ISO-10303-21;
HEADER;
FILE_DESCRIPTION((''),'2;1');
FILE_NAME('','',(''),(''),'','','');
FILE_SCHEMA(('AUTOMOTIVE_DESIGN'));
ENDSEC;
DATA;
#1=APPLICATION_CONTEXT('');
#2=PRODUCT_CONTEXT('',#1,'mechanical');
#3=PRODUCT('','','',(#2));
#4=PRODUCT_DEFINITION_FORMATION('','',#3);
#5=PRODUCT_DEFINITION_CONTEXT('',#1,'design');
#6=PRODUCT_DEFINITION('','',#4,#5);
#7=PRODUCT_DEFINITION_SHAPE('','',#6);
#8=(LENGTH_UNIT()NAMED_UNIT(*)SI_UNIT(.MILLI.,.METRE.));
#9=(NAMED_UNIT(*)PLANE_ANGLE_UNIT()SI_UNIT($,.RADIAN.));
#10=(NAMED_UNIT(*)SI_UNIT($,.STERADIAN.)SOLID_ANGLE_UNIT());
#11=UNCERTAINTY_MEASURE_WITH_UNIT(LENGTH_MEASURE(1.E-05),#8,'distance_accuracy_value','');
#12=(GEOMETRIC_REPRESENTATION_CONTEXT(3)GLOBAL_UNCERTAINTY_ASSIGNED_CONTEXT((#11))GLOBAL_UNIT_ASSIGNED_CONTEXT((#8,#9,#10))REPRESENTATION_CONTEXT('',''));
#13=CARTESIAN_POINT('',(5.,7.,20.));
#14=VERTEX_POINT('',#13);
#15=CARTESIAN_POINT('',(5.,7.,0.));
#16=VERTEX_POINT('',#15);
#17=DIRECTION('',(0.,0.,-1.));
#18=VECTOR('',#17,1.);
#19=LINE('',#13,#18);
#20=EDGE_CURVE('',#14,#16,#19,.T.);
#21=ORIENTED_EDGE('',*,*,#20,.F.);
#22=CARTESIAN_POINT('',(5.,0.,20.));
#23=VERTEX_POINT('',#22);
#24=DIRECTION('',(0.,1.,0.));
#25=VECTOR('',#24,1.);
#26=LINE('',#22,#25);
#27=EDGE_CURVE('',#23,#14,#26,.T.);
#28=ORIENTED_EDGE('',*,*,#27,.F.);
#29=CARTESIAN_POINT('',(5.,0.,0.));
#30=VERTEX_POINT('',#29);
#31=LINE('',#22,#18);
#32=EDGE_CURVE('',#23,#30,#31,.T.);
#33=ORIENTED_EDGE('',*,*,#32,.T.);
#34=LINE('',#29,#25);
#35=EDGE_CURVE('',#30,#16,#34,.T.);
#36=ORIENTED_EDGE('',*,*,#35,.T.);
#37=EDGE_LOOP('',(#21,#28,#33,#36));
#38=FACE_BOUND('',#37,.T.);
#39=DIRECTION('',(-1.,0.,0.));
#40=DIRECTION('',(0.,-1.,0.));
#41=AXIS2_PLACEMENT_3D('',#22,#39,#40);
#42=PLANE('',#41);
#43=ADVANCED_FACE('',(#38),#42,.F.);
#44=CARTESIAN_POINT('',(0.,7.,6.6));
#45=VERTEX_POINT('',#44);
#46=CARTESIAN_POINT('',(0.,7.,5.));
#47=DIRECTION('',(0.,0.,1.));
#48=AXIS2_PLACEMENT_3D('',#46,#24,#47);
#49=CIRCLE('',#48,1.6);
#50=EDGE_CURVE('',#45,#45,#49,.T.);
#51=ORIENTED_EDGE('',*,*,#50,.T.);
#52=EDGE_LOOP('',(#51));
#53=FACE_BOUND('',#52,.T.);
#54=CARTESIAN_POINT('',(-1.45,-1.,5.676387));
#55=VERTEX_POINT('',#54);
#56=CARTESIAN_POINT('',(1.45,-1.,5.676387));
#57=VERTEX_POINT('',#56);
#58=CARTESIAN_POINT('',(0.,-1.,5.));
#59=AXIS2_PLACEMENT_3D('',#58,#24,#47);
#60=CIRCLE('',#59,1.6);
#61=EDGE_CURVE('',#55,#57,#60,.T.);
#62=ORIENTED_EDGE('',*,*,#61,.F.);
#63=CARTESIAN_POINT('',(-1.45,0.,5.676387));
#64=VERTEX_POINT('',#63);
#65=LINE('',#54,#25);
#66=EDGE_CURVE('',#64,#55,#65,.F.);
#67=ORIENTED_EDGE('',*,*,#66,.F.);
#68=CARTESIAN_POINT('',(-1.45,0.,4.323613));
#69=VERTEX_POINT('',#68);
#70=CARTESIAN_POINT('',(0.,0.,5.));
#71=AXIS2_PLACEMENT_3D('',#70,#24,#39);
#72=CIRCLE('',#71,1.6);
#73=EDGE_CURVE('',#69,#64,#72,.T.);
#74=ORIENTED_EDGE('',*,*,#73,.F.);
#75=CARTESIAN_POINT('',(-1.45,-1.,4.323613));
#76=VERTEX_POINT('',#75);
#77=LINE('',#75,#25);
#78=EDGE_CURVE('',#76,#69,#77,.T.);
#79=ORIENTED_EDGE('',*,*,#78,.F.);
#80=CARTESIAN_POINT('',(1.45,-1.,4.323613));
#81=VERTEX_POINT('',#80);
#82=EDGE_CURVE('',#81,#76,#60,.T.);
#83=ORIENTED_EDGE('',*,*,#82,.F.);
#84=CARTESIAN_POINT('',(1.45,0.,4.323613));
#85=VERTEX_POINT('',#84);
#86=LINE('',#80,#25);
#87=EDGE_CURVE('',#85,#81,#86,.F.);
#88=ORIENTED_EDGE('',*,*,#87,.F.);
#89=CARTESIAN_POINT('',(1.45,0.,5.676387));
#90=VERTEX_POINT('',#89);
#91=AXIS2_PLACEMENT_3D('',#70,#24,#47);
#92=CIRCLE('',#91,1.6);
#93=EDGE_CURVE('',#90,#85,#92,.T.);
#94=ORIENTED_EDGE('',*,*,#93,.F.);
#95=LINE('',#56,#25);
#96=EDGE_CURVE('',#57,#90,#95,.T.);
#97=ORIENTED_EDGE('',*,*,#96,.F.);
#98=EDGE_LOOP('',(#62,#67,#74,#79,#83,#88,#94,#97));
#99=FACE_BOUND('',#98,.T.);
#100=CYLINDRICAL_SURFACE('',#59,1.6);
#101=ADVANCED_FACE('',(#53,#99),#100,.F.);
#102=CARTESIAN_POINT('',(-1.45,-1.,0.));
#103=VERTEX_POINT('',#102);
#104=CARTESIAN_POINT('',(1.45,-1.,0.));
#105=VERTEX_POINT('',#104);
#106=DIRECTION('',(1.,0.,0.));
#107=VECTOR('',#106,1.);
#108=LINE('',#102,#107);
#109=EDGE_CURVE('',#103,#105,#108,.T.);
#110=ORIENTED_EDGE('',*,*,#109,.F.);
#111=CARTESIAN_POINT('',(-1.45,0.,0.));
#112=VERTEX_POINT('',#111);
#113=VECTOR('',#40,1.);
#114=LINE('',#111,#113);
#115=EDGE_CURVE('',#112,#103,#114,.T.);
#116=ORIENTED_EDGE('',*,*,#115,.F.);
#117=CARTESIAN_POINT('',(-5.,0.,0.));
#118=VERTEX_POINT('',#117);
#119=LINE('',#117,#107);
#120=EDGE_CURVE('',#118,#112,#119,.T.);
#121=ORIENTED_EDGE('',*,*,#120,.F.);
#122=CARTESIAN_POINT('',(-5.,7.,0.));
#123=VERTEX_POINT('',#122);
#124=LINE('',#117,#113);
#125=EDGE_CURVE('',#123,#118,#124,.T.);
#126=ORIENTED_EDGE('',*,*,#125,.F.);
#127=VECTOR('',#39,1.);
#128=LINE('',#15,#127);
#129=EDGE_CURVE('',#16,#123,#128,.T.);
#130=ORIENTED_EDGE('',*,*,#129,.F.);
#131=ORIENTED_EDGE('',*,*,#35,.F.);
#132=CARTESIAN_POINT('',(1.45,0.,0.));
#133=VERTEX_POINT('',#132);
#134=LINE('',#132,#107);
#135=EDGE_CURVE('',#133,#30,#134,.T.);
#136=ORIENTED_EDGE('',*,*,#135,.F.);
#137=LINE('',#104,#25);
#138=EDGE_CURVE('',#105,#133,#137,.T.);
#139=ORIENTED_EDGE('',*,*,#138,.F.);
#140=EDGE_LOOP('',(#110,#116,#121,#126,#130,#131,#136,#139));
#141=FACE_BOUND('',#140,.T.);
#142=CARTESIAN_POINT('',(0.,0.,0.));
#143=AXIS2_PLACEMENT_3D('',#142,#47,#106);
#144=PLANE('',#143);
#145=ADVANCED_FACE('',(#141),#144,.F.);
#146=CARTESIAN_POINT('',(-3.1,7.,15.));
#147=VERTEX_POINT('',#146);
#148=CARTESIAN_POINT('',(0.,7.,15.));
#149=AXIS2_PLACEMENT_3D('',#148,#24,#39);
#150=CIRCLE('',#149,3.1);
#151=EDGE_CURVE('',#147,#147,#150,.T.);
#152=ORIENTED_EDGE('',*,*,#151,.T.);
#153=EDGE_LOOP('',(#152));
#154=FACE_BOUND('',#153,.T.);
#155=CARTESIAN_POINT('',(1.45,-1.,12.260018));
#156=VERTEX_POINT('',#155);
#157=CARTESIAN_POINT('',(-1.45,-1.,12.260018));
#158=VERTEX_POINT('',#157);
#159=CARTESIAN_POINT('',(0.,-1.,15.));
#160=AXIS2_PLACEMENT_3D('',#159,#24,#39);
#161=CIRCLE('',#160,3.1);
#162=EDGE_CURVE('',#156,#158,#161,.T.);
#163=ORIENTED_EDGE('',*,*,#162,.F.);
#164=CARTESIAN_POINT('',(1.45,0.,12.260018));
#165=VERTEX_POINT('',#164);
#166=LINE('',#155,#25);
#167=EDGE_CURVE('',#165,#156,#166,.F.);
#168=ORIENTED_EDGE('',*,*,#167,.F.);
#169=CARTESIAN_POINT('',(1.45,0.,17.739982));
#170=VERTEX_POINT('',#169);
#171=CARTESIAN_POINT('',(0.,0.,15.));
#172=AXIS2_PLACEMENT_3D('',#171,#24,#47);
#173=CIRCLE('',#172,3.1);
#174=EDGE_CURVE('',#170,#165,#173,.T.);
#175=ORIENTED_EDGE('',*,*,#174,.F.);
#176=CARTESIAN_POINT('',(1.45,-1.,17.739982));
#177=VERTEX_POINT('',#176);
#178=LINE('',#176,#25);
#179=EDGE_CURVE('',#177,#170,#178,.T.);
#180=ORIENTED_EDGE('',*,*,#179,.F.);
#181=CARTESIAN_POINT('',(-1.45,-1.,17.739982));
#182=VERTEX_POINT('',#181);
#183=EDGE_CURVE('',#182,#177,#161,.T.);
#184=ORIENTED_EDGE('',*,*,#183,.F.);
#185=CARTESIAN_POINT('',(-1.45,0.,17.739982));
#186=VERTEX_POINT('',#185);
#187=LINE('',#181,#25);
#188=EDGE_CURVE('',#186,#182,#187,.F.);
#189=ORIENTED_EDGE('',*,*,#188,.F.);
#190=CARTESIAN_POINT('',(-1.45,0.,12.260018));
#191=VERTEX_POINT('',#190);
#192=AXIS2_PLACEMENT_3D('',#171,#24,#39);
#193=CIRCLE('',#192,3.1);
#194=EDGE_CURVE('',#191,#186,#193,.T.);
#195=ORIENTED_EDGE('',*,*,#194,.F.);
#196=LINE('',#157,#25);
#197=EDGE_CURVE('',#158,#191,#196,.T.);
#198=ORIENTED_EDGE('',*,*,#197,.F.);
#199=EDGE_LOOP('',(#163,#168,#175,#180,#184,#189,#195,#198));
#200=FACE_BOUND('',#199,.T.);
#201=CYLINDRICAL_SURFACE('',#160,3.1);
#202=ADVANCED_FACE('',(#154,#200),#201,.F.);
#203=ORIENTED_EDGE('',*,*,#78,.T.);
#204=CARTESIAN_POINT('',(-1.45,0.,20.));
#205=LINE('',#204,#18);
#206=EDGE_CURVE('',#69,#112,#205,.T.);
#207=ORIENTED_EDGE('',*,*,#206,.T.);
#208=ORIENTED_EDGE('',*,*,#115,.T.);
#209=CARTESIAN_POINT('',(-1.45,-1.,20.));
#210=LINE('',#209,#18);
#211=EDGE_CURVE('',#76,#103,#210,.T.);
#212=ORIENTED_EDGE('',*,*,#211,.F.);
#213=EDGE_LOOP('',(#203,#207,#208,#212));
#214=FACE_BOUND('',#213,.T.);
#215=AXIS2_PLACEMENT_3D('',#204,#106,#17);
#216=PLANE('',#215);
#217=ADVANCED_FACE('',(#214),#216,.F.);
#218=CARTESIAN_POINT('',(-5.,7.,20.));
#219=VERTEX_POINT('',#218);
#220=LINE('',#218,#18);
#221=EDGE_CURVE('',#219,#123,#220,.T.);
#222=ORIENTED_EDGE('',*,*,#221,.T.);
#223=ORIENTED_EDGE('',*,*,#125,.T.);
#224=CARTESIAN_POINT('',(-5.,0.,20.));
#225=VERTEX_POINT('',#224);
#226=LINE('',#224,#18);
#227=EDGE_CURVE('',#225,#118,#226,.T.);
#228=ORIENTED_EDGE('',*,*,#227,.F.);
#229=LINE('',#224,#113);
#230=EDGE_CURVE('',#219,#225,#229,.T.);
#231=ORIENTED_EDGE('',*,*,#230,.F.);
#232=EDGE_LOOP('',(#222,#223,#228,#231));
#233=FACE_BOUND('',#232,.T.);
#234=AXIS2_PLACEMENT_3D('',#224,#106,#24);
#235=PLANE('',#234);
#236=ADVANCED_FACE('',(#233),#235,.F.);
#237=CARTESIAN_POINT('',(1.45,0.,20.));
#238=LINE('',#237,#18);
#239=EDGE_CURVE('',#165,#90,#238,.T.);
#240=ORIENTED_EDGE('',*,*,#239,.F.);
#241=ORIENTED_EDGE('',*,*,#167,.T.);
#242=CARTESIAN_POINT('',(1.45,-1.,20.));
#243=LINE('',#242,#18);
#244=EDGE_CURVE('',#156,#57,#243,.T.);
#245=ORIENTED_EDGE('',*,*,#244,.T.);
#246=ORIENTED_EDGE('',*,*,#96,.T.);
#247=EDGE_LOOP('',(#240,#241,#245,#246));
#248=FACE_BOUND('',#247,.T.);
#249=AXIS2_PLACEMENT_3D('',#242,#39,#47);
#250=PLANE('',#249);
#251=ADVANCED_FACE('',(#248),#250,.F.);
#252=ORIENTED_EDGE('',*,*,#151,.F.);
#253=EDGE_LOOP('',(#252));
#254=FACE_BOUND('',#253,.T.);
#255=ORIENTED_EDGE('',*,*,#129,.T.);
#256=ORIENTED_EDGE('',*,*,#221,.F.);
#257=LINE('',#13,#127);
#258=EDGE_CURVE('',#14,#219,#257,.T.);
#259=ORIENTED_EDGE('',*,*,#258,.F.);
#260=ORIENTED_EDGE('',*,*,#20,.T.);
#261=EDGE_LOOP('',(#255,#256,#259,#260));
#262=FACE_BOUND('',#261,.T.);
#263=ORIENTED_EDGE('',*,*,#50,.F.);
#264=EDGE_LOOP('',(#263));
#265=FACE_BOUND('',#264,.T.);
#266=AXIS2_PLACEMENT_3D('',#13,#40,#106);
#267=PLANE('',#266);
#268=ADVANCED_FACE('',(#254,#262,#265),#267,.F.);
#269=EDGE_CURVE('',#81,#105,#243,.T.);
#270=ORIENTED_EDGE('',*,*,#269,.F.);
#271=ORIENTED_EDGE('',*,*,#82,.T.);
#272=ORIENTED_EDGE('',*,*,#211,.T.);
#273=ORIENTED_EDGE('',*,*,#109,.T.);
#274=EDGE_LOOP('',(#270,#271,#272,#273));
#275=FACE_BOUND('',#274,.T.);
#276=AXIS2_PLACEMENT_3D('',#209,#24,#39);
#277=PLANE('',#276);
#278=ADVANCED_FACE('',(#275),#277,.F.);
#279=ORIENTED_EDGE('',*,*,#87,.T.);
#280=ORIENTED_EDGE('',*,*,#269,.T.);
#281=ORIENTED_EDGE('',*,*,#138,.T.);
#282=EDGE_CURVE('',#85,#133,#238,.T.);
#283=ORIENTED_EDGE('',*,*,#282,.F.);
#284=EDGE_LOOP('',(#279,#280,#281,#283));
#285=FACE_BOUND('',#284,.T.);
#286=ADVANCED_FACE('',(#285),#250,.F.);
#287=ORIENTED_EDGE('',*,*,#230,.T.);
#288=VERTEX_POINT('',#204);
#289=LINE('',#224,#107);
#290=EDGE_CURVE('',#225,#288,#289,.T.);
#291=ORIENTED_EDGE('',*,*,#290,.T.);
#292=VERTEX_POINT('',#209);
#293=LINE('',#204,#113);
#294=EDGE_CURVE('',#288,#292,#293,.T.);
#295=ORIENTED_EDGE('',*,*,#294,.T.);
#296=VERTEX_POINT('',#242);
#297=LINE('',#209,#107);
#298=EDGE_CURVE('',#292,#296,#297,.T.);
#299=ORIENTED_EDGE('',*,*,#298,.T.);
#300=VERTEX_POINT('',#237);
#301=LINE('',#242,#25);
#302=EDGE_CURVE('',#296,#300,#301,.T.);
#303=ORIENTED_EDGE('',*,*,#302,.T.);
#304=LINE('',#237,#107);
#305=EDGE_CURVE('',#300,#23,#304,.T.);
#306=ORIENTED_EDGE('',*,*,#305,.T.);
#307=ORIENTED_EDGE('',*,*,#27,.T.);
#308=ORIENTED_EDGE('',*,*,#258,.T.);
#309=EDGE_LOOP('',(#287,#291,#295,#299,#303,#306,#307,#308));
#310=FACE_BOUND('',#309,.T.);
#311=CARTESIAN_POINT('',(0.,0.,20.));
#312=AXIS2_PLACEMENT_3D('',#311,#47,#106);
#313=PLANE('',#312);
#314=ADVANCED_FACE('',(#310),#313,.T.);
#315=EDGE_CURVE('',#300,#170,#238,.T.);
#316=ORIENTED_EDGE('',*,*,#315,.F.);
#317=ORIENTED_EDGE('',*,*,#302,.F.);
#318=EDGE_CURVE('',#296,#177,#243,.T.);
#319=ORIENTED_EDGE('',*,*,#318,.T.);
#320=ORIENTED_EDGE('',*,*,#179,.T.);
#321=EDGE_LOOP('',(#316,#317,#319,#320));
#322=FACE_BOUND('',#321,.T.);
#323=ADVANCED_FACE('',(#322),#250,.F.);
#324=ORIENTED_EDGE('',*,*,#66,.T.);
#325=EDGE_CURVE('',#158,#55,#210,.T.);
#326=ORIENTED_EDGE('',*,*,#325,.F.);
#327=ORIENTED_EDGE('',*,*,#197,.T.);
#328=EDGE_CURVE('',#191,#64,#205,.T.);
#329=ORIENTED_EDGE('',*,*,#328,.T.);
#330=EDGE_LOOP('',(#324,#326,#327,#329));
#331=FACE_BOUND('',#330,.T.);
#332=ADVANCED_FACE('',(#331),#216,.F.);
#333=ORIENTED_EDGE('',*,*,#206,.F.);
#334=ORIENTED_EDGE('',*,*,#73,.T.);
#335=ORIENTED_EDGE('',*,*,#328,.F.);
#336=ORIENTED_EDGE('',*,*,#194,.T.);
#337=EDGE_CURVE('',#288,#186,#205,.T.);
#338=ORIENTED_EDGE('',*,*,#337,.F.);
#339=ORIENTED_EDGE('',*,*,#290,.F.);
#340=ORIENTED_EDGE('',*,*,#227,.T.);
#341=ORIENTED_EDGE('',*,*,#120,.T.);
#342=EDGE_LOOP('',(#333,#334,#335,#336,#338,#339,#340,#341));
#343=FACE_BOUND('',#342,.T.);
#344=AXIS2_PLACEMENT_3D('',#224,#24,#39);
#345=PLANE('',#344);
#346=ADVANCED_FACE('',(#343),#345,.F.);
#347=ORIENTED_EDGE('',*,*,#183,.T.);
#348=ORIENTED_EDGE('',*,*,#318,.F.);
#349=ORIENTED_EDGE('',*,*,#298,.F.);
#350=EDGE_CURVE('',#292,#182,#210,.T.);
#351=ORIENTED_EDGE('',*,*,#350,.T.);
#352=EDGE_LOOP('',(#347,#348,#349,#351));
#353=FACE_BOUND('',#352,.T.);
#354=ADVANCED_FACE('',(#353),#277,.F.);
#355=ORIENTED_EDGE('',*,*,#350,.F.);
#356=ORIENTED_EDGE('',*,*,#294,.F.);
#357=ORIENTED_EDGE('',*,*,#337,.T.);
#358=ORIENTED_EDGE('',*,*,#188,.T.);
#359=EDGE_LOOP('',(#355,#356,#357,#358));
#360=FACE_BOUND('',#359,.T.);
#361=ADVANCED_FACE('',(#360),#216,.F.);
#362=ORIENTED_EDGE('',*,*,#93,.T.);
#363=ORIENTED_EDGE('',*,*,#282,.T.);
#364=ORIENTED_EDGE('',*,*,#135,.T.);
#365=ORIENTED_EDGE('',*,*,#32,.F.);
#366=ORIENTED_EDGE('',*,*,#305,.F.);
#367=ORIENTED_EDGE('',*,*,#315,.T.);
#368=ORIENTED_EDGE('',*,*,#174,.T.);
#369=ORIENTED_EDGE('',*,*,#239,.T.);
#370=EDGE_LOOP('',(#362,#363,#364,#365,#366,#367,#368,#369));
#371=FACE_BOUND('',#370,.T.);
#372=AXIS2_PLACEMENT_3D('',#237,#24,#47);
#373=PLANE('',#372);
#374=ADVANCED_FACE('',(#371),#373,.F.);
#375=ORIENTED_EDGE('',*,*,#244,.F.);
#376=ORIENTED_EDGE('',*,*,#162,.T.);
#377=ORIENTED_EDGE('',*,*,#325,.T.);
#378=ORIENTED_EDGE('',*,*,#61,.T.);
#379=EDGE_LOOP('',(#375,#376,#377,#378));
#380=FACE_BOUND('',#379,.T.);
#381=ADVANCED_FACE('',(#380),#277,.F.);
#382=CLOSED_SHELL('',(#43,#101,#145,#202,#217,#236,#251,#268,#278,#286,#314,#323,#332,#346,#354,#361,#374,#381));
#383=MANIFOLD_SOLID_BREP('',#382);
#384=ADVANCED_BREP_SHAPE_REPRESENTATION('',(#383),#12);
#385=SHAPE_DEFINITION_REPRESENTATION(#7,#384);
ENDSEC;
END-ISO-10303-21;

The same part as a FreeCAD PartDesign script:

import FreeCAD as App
import Part
import Sketcher
from FreeCAD import Vector
Q = App.Units.Quantity


def add_polygon(sketch, points):
    """Adds a closed chain of lines whose ends are joined by coincident constraints."""
    first, n = sketch.GeometryCount, len(points)
    for a, b in zip(points, points[1:] + points[:1]):
        sketch.addGeometry(Part.LineSegment(App.Vector(*a, 0), App.Vector(*b, 0)), False)
    for i in range(n):
        sketch.addConstraint(Sketcher.Constraint("Coincident", first + i, 2, first + (i + 1) % n, 1))

doc = App.newDocument("Part")
body = doc.addObject("PartDesign::Body", "Body")

sketch1 = doc.addObject("Sketcher::SketchObject", "Sketch")
body.addObject(sketch1)
sketch1.AttachmentSupport = (doc.XY_Plane, [""])
sketch1.MapMode = "FlatFace"
add_polygon(sketch1, [(-5, 0), (-1.4, 0), (-1.4, -1), (1.4, -1), (1.4, 0), (5, 0), (5, 7), (-5, 7)])
sketch1.addConstraint([
    Sketcher.Constraint("Horizontal", 0),
    Sketcher.Constraint("Vertical", 1),
    Sketcher.Constraint("Horizontal", 2),
    Sketcher.Constraint("Vertical", 3),
    Sketcher.Constraint("Horizontal", 4),
    Sketcher.Constraint("Vertical", 5),
    Sketcher.Constraint("Horizontal", 6),
    Sketcher.Constraint("Vertical", 7),
    Sketcher.Constraint("Symmetric", 0, 2, 3, 2, -1, 1),
    Sketcher.Constraint("Symmetric", 4, 2, 7, 2, -2),
    Sketcher.Constraint("DistanceX", 6, 2, 6, 1, Q("10 mm")),
    Sketcher.Constraint("DistanceY", 1, 2, 1, 1, Q("1 mm")),
    Sketcher.Constraint("DistanceY", 5, 1, 5, 2, Q("7 mm")),
    Sketcher.Constraint("DistanceX", 2, 1, 2, 2, Q("2.9 mm")),
])
pad1 = doc.addObject("PartDesign::Pad", "Pad")
body.addObject(pad1)
pad1.Profile = sketch1
pad1.Length = 20

sketch2 = doc.addObject("Sketcher::SketchObject", "Sketch001")
body.addObject(sketch2)
sketch2.AttachmentSupport = (doc.XZ_Plane, [""])
sketch2.MapMode = "FlatFace"
sketch2.AttachmentOffset = App.Placement(Vector(0, 0, -7), App.Rotation())
sketch2.addGeometry(Part.Circle(Vector(0, 15, 0), Vector(0, 0, 1), 3.1), False)
sketch2.addConstraint([
    Sketcher.Constraint("PointOnObject", 0, 3, -2),
    Sketcher.Constraint("Diameter", 0, Q("6.2 mm")),
    Sketcher.Constraint("DistanceY", -1, 1, 0, 3, Q("15 mm")),
])
pocket1 = doc.addObject("PartDesign::Pocket", "Pocket")
body.addObject(pocket1)
pocket1.Profile = sketch2
pocket1.Type = "ThroughAll"
pocket1.Reversed = True

sketch3 = doc.addObject("Sketcher::SketchObject", "Sketch002")
body.addObject(sketch3)
sketch3.AttachmentSupport = (doc.XZ_Plane, [""])
sketch3.MapMode = "FlatFace"
sketch3.AttachmentOffset = App.Placement(Vector(0, 0, -7), App.Rotation())
sketch3.addGeometry(Part.Circle(Vector(0, 5, 0), Vector(0, 0, 1), 1.6), False)
sketch3.addConstraint([
    Sketcher.Constraint("PointOnObject", 0, 3, -2),
    Sketcher.Constraint("Diameter", 0, Q("3.2 mm")),
    Sketcher.Constraint("DistanceY", -1, 1, 0, 3, Q("5 mm")),
])
pocket2 = doc.addObject("PartDesign::Pocket", "Pocket001")
body.addObject(pocket2)
pocket2.Profile = sketch3
pocket2.Type = "ThroughAll"
pocket2.Reversed = True

doc.recompute()
